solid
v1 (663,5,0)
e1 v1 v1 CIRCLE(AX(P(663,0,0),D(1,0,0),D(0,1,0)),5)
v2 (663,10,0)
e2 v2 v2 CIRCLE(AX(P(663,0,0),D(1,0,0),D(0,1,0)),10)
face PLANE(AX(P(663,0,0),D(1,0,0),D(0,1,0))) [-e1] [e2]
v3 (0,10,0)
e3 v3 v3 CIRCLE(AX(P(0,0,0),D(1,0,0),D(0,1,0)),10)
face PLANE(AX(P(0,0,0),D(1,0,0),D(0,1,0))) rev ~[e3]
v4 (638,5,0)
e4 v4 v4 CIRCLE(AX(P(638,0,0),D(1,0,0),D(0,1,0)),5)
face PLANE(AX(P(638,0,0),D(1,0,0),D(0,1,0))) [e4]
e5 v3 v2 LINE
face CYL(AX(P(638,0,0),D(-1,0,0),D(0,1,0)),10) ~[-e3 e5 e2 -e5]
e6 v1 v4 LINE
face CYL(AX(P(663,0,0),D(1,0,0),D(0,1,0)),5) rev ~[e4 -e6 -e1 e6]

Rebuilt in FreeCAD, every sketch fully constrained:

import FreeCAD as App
import Part
import Sketcher
from FreeCAD import Vector
Q = App.Units.Quantity

doc = App.newDocument("Part")
body = doc.addObject("PartDesign::Body", "Body")

# Sketch on YZ plane
sketch1 = body.newObject("Sketcher::SketchObject", "Sketch")
sketch1.AttachmentSupport = (doc.getObject("YZ_Plane"), [""])
sketch1.MapMode = "FlatFace"
sketch1.addGeometry(Part.Circle(Vector(0, 0, 0), Vector(0, 0, 1), 10), False)
sketch1.addConstraint([
    Sketcher.Constraint("Coincident", 0, 3, -1, 1),
    Sketcher.Constraint("Diameter", 0, Q("20 mm")),
])
pad1 = body.newObject("PartDesign::Pad", "Pad")
pad1.Profile = sketch1
pad1.Length = 638

# Sketch on YZ plane
sketch2 = body.newObject("Sketcher::SketchObject", "Sketch001")
sketch2.AttachmentSupport = (doc.getObject("YZ_Plane"), [""])
sketch2.MapMode = "FlatFace"
sketch2.AttachmentOffset = App.Placement(Vector(0, 0, 638), App.Rotation())
sketch2.addGeometry(Part.Circle(Vector(0, 0, 0), Vector(0, 0, 1), 10), False)
sketch2.addConstraint([
    Sketcher.Constraint("Coincident", 0, 3, -1, 1),
    Sketcher.Constraint("Diameter", 0, Q("20 mm")),
])
pad2 = body.newObject("PartDesign::Pad", "Pad001")
pad2.Profile = sketch2
pad2.Length = 25

# Sketch on YZ plane
sketch3 = body.newObject("Sketcher::SketchObject", "Sketch002")
sketch3.AttachmentSupport = (doc.getObject("YZ_Plane"), [""])
sketch3.MapMode = "FlatFace"
sketch3.AttachmentOffset = App.Placement(Vector(0, 0, 663), App.Rotation())
sketch3.addGeometry(Part.Circle(Vector(0, 0, 0), Vector(0, 0, 1), 5), False)
sketch3.addConstraint([
    Sketcher.Constraint("Coincident", 0, 3, -1, 1),
    Sketcher.Constraint("Diameter", 0, Q("10 mm")),
])
pocket1 = body.newObject("PartDesign::Pocket", "Pocket")
pocket1.Profile = sketch3
pocket1.Length = 25

doc.recompute()
